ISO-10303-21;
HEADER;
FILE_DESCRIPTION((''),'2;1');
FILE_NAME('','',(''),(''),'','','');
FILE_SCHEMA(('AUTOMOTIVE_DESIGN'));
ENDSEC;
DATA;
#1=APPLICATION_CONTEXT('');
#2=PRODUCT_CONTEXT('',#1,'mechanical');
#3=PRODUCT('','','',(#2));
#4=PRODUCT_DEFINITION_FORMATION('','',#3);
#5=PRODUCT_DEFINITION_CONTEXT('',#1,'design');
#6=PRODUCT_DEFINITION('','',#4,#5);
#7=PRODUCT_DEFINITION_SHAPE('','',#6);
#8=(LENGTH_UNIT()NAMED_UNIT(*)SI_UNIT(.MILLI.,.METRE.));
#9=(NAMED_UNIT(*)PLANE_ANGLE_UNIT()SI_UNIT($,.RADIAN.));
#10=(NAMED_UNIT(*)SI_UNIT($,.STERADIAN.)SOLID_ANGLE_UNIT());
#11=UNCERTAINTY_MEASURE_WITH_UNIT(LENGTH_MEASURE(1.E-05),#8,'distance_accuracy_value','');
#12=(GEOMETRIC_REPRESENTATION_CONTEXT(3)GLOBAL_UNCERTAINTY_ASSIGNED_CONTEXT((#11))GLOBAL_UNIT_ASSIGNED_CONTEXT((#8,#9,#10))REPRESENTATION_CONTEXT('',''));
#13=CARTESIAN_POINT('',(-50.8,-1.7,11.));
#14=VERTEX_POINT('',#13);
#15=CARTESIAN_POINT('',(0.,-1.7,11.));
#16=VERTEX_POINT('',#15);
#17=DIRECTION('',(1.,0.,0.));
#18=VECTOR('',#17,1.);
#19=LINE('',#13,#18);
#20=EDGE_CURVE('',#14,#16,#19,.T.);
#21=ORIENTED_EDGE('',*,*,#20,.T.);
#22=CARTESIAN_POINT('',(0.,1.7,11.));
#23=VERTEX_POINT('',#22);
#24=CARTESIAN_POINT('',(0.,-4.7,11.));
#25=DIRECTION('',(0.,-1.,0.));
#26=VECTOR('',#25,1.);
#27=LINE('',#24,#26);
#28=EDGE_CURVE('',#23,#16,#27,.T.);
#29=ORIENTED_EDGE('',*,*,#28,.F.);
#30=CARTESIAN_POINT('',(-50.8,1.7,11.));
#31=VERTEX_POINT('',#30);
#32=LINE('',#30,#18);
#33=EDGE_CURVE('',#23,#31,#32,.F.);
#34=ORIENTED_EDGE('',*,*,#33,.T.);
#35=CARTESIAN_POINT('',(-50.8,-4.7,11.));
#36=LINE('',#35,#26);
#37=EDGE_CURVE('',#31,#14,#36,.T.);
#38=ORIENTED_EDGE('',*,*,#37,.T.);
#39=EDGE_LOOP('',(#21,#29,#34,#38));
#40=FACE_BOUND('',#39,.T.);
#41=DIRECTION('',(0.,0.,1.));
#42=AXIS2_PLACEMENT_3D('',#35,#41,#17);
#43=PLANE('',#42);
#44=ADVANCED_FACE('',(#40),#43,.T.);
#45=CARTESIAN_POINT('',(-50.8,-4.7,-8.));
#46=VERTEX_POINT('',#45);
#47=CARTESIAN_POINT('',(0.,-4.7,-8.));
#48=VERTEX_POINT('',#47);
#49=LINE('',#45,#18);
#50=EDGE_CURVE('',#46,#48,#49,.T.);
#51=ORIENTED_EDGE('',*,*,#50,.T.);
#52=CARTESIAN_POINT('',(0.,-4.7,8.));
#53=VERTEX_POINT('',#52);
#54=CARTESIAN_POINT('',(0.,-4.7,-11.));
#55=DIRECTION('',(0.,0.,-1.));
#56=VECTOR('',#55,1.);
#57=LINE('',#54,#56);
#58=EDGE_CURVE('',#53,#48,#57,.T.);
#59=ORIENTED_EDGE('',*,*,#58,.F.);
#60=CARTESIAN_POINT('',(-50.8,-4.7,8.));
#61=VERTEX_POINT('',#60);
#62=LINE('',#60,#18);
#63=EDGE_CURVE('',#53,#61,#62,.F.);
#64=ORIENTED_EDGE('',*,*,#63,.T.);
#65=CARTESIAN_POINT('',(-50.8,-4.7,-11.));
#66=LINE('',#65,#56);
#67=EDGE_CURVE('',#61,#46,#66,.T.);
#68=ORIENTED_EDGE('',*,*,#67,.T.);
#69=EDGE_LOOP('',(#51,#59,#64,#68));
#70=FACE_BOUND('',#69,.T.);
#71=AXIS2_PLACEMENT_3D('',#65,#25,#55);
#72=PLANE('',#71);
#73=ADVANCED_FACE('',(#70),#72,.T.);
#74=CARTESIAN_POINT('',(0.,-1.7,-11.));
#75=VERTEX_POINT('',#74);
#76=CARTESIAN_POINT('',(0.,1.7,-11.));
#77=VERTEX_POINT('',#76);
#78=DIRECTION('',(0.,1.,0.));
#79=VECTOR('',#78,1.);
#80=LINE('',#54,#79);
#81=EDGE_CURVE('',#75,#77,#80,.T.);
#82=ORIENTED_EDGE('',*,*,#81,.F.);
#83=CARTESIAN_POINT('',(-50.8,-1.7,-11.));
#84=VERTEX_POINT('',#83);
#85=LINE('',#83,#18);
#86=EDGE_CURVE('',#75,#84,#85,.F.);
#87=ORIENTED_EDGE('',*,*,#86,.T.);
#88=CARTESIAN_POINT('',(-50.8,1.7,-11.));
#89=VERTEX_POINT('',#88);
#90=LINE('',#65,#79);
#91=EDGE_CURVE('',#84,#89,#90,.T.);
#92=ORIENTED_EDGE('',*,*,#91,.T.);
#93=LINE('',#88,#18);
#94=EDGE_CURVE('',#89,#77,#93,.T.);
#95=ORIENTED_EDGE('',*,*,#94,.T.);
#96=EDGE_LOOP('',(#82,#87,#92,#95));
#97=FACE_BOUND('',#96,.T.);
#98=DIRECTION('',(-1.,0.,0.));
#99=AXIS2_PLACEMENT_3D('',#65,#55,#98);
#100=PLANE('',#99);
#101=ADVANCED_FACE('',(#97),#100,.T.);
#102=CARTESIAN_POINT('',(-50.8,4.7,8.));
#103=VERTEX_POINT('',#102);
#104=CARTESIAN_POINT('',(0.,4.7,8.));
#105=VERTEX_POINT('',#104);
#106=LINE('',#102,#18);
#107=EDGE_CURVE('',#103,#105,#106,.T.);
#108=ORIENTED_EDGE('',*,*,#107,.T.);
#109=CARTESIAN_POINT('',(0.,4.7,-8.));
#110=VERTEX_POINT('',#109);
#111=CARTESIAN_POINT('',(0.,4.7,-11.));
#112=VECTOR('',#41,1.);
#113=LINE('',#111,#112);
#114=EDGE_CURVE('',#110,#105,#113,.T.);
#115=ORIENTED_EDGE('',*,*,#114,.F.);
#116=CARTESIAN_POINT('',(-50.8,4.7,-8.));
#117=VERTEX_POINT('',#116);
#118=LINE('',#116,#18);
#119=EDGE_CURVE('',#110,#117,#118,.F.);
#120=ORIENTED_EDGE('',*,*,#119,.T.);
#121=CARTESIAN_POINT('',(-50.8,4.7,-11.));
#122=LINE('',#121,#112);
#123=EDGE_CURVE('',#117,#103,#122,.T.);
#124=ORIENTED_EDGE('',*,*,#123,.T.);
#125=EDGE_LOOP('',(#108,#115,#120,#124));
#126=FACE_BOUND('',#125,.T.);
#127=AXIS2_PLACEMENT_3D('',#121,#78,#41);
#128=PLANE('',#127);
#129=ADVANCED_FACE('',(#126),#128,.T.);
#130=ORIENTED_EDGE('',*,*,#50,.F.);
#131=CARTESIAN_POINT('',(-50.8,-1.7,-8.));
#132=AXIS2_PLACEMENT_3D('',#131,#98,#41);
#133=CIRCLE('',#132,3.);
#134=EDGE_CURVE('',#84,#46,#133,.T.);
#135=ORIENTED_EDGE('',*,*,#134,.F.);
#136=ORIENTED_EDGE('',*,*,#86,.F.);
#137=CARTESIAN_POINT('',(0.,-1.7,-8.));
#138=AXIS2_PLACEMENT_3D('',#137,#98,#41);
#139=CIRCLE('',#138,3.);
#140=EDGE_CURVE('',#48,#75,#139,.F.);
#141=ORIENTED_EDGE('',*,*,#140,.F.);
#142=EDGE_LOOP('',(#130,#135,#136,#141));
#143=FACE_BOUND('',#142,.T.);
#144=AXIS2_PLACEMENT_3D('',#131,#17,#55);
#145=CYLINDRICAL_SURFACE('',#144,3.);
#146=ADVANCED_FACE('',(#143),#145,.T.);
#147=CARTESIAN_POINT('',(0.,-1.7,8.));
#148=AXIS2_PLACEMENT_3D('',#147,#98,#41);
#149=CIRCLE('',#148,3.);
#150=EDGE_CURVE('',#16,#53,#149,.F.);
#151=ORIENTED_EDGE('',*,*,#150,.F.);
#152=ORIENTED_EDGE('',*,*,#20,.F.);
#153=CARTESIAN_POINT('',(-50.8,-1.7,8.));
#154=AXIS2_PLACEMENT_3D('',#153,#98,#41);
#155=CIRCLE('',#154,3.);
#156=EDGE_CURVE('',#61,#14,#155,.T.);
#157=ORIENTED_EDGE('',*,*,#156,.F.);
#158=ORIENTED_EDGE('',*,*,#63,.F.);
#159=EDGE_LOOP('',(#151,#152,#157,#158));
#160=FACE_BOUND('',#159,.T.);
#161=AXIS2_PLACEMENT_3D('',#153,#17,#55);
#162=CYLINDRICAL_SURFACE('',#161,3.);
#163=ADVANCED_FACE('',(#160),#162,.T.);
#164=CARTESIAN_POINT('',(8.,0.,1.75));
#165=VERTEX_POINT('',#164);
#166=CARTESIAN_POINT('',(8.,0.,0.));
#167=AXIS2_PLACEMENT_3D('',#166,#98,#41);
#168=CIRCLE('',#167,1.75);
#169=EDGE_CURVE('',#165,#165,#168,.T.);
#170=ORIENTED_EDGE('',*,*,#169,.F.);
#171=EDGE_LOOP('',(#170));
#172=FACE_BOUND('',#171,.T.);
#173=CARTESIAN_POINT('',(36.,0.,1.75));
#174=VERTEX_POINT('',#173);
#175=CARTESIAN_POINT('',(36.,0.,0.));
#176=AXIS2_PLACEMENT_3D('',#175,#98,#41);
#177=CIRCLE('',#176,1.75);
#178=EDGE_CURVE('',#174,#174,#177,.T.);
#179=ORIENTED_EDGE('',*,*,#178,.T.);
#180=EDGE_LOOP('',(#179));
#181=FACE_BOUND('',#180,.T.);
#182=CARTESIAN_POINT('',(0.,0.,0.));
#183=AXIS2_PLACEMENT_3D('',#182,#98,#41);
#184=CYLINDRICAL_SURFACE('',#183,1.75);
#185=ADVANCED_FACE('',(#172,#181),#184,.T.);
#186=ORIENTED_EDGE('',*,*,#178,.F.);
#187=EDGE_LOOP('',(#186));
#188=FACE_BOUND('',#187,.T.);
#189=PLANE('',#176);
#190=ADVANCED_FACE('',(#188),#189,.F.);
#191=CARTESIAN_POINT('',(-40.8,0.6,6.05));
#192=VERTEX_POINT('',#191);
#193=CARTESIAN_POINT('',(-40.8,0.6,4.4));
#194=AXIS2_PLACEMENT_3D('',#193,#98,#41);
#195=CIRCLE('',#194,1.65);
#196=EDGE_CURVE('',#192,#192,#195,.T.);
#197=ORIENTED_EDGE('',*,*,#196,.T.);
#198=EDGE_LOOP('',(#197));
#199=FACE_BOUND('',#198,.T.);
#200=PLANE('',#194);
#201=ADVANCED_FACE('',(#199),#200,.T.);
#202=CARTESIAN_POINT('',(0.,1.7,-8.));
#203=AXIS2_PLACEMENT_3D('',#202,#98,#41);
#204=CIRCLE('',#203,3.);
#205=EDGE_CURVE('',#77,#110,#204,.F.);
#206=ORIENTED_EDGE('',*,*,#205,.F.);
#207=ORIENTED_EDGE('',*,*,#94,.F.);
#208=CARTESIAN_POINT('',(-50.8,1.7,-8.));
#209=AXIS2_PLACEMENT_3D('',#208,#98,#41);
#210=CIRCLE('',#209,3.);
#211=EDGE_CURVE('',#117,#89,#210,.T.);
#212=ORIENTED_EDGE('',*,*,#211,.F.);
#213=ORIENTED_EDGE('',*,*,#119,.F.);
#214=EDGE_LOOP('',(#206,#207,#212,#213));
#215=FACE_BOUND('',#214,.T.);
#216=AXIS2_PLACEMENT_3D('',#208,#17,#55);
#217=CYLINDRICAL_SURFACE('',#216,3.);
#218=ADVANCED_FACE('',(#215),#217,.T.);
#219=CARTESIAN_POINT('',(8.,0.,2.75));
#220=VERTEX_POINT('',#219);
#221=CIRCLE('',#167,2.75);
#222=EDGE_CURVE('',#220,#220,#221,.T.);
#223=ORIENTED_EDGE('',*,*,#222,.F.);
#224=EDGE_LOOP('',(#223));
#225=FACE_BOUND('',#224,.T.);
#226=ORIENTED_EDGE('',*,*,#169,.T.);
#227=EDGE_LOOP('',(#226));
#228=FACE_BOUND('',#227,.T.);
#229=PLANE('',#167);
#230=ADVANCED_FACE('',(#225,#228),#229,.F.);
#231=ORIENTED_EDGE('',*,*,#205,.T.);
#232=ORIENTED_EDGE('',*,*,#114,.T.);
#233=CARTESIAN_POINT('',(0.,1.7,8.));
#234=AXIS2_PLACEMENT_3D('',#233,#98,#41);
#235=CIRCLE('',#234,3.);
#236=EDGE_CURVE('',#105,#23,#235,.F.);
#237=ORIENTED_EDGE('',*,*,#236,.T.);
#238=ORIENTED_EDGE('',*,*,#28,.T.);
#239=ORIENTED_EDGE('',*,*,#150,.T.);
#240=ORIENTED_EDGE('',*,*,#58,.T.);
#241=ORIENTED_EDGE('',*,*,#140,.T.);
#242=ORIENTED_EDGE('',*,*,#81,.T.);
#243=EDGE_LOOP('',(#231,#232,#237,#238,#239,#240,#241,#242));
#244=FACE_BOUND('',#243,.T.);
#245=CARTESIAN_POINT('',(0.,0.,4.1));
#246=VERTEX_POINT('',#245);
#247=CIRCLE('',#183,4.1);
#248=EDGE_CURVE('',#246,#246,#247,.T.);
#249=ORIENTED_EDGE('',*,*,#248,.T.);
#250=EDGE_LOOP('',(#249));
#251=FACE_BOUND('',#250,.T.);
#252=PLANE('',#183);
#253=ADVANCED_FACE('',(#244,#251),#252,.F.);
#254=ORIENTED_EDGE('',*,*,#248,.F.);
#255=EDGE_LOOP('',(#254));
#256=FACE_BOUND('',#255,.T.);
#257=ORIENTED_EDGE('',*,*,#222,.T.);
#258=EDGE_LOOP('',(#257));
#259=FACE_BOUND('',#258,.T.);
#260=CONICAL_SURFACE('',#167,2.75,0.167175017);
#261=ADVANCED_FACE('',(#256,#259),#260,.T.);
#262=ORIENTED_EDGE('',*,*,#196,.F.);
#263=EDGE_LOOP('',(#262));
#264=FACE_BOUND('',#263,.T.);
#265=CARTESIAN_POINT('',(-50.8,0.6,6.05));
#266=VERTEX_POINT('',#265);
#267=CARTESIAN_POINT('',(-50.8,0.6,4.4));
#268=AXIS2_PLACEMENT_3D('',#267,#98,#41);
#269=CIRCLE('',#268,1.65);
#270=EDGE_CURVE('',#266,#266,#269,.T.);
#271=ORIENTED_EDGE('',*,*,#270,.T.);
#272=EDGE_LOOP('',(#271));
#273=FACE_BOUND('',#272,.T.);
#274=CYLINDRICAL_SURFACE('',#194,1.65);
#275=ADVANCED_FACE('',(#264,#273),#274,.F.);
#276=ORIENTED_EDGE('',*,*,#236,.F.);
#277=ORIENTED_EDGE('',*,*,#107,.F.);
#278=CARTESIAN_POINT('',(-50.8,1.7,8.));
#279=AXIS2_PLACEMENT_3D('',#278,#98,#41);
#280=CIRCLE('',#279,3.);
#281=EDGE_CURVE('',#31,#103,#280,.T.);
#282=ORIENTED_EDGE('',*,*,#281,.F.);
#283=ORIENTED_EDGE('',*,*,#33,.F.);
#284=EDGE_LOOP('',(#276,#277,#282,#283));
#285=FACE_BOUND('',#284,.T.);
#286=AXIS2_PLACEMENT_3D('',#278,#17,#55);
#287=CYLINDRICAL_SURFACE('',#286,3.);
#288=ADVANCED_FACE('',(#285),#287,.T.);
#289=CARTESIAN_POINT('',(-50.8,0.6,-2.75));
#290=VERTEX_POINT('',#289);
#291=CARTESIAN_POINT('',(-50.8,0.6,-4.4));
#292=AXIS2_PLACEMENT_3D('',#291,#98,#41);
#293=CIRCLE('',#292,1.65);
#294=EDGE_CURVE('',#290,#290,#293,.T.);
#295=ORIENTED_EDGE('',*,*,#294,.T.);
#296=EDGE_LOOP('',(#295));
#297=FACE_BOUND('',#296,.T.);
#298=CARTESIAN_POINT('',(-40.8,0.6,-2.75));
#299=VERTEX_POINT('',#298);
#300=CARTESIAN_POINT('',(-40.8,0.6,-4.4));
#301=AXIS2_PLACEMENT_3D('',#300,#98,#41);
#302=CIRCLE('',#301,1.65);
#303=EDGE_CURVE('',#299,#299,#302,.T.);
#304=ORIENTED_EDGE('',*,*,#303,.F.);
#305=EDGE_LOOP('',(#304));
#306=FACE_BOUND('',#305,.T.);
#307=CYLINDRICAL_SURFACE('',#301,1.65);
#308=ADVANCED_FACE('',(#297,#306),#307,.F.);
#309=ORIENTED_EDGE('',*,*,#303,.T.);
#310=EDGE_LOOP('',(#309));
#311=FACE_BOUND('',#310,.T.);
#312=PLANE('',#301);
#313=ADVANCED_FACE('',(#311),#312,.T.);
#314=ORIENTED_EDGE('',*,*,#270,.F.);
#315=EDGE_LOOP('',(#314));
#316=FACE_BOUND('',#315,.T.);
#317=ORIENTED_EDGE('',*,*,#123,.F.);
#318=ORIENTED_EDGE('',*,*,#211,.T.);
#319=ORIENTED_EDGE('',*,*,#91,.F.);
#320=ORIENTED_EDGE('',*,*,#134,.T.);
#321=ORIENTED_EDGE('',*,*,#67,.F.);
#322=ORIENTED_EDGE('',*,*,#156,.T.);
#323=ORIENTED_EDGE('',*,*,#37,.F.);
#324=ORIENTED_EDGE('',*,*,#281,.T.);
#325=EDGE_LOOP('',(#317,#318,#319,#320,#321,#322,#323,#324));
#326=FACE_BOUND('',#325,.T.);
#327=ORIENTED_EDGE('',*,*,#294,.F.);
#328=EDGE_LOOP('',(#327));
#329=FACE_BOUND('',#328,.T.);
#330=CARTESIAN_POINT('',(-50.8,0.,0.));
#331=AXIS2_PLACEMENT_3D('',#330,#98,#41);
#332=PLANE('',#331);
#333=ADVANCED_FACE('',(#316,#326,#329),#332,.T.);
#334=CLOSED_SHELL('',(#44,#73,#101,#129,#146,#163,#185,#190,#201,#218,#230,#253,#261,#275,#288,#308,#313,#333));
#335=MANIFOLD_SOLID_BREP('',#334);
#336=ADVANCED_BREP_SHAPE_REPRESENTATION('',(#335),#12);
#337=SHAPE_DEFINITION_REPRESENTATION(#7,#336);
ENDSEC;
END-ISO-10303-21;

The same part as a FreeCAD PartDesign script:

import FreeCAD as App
import Part
import Sketcher

V = App.Vector


def edges_at(feature, points):
    """Names of the edges that pass closest to the given points."""
    edges = feature.Shape.Edges
    near = lambda p: min(range(len(edges)), key=lambda i: edges[i].distToShape(Part.Vertex(*p))[0])
    return sorted({f"Edge{near(p) + 1}" for p in points})


def add_polygon(sketch, points):
    """Adds a closed chain of lines whose ends are joined by coincident constraints."""
    first, n = sketch.GeometryCount, len(points)
    for a, b in zip(points, points[1:] + points[:1]):
        sketch.addGeometry(Part.LineSegment(App.Vector(*a, 0), App.Vector(*b, 0)), False)
    for i in range(n):
        sketch.addConstraint(Sketcher.Constraint("Coincident", first + i, 2, first + (i + 1) % n, 1))

doc = App.newDocument("Part")
body = doc.addObject("PartDesign::Body", "Body")

# Sketch on YZ plane
sketch1 = body.newObject("Sketcher::SketchObject", "Sketch")
sketch1.AttachmentSupport = (doc.getObject("YZ_Plane"), [""])
sketch1.MapMode = "FlatFace"
add_polygon(sketch1, [(5, 11), (-5, 11), (-5, -11), (5, -11)])  # lines 0-3
sketch1.addConstraint([
    Sketcher.Constraint("Horizontal", 0),
    Sketcher.Constraint("Vertical", 1),
    Sketcher.Constraint("Horizontal", 2),
    Sketcher.Constraint("Vertical", 3),
    Sketcher.Constraint("Symmetric", 0, 2, 2, 2, -1, 1),
    Sketcher.Constraint("DistanceY", 1, 2, 1, 1, 22.0),
    Sketcher.Constraint("DistanceX", 0, 2, 0, 1, 9.4),
])
pad1 = body.newObject("PartDesign::Pad", "Pad")
pad1.Profile = sketch1
pad1.Length = 50.8
pad1.Reversed = True

# Sketch on XZ plane
sketch2 = body.newObject("Sketcher::SketchObject", "Sketch001")
sketch2.AttachmentSupport = (doc.getObject("XZ_Plane"), [""])
sketch2.MapMode = "FlatFace"
add_polygon(sketch2, [(8, -2.8), (0, -4.1), (0, 0), (36, 0), (36, -1.8), (8, -1.8)])  # lines 0-5
sketch2.addConstraint([
    Sketcher.Constraint("Vertical", 1),
    Sketcher.Constraint("Horizontal", 2),
    Sketcher.Constraint("Vertical", 3),
    Sketcher.Constraint("Horizontal", 4),
    Sketcher.Constraint("Vertical", 5),
    Sketcher.Constraint("Coincident", 1, 2, -1, 1),
    Sketcher.Constraint("DistanceX", 2, 1, 2, 2, 36.0),
    Sketcher.Constraint("DistanceX", 4, 2, 4, 1, 28.0),
    Sketcher.Constraint("DistanceY", 5, 2, 5, 1, 1.0),
    Sketcher.Constraint("DistanceY", 1, 1, 1, 2, 4.1),
    Sketcher.Constraint("DistanceY", 3, 2, 3, 1, 1.75),
])
revolution = body.newObject("PartDesign::Revolution", "Revolution")
revolution.Profile = sketch2
revolution.ReferenceAxis = (sketch2, ["H_Axis"])
revolution.Angle = 360
doc.recompute()

fillet = body.newObject("PartDesign::Fillet", "Fillet")
fillet.Base = (revolution, edges_at(revolution, [
    (-25.4, -4.7, 11),
    (-25.4, 4.7, 11),
    (-25.4, 4.7, -11),
    (-25.4, -4.7, -11),
]))
fillet.Radius = 3

# Sketch on YZ plane
sketch3 = body.newObject("Sketcher::SketchObject", "Sketch002")
sketch3.AttachmentSupport = (doc.getObject("YZ_Plane"), [""])
sketch3.MapMode = "FlatFace"
sketch3.AttachmentOffset = App.Placement(V(0, 0, -50.8), App.Rotation())
sketch3.addGeometry([
    Part.Circle(V(0.6, -4.4, 0), V(0, 0, 1), 1.6),
    Part.Circle(V(0.6, 4.4, 0), V(0, 0, 1), 1.6),
], False)
sketch3.addConstraint([
    Sketcher.Constraint("Equal", 0, 1),
    Sketcher.Constraint("Symmetric", 0, 3, 1, 3, -1),
    Sketcher.Constraint("Diameter", 0, 3.3),
    Sketcher.Constraint("DistanceX", -1, 1, 0, 3, 0.6),
    Sketcher.Constraint("DistanceY", 0, 3, -1, 1, 4.4),
])
pocket1 = body.newObject("PartDesign::Pocket", "Pocket")
pocket1.Profile = sketch3
pocket1.Length = 10
pocket1.Reversed = True

doc.recompute()
